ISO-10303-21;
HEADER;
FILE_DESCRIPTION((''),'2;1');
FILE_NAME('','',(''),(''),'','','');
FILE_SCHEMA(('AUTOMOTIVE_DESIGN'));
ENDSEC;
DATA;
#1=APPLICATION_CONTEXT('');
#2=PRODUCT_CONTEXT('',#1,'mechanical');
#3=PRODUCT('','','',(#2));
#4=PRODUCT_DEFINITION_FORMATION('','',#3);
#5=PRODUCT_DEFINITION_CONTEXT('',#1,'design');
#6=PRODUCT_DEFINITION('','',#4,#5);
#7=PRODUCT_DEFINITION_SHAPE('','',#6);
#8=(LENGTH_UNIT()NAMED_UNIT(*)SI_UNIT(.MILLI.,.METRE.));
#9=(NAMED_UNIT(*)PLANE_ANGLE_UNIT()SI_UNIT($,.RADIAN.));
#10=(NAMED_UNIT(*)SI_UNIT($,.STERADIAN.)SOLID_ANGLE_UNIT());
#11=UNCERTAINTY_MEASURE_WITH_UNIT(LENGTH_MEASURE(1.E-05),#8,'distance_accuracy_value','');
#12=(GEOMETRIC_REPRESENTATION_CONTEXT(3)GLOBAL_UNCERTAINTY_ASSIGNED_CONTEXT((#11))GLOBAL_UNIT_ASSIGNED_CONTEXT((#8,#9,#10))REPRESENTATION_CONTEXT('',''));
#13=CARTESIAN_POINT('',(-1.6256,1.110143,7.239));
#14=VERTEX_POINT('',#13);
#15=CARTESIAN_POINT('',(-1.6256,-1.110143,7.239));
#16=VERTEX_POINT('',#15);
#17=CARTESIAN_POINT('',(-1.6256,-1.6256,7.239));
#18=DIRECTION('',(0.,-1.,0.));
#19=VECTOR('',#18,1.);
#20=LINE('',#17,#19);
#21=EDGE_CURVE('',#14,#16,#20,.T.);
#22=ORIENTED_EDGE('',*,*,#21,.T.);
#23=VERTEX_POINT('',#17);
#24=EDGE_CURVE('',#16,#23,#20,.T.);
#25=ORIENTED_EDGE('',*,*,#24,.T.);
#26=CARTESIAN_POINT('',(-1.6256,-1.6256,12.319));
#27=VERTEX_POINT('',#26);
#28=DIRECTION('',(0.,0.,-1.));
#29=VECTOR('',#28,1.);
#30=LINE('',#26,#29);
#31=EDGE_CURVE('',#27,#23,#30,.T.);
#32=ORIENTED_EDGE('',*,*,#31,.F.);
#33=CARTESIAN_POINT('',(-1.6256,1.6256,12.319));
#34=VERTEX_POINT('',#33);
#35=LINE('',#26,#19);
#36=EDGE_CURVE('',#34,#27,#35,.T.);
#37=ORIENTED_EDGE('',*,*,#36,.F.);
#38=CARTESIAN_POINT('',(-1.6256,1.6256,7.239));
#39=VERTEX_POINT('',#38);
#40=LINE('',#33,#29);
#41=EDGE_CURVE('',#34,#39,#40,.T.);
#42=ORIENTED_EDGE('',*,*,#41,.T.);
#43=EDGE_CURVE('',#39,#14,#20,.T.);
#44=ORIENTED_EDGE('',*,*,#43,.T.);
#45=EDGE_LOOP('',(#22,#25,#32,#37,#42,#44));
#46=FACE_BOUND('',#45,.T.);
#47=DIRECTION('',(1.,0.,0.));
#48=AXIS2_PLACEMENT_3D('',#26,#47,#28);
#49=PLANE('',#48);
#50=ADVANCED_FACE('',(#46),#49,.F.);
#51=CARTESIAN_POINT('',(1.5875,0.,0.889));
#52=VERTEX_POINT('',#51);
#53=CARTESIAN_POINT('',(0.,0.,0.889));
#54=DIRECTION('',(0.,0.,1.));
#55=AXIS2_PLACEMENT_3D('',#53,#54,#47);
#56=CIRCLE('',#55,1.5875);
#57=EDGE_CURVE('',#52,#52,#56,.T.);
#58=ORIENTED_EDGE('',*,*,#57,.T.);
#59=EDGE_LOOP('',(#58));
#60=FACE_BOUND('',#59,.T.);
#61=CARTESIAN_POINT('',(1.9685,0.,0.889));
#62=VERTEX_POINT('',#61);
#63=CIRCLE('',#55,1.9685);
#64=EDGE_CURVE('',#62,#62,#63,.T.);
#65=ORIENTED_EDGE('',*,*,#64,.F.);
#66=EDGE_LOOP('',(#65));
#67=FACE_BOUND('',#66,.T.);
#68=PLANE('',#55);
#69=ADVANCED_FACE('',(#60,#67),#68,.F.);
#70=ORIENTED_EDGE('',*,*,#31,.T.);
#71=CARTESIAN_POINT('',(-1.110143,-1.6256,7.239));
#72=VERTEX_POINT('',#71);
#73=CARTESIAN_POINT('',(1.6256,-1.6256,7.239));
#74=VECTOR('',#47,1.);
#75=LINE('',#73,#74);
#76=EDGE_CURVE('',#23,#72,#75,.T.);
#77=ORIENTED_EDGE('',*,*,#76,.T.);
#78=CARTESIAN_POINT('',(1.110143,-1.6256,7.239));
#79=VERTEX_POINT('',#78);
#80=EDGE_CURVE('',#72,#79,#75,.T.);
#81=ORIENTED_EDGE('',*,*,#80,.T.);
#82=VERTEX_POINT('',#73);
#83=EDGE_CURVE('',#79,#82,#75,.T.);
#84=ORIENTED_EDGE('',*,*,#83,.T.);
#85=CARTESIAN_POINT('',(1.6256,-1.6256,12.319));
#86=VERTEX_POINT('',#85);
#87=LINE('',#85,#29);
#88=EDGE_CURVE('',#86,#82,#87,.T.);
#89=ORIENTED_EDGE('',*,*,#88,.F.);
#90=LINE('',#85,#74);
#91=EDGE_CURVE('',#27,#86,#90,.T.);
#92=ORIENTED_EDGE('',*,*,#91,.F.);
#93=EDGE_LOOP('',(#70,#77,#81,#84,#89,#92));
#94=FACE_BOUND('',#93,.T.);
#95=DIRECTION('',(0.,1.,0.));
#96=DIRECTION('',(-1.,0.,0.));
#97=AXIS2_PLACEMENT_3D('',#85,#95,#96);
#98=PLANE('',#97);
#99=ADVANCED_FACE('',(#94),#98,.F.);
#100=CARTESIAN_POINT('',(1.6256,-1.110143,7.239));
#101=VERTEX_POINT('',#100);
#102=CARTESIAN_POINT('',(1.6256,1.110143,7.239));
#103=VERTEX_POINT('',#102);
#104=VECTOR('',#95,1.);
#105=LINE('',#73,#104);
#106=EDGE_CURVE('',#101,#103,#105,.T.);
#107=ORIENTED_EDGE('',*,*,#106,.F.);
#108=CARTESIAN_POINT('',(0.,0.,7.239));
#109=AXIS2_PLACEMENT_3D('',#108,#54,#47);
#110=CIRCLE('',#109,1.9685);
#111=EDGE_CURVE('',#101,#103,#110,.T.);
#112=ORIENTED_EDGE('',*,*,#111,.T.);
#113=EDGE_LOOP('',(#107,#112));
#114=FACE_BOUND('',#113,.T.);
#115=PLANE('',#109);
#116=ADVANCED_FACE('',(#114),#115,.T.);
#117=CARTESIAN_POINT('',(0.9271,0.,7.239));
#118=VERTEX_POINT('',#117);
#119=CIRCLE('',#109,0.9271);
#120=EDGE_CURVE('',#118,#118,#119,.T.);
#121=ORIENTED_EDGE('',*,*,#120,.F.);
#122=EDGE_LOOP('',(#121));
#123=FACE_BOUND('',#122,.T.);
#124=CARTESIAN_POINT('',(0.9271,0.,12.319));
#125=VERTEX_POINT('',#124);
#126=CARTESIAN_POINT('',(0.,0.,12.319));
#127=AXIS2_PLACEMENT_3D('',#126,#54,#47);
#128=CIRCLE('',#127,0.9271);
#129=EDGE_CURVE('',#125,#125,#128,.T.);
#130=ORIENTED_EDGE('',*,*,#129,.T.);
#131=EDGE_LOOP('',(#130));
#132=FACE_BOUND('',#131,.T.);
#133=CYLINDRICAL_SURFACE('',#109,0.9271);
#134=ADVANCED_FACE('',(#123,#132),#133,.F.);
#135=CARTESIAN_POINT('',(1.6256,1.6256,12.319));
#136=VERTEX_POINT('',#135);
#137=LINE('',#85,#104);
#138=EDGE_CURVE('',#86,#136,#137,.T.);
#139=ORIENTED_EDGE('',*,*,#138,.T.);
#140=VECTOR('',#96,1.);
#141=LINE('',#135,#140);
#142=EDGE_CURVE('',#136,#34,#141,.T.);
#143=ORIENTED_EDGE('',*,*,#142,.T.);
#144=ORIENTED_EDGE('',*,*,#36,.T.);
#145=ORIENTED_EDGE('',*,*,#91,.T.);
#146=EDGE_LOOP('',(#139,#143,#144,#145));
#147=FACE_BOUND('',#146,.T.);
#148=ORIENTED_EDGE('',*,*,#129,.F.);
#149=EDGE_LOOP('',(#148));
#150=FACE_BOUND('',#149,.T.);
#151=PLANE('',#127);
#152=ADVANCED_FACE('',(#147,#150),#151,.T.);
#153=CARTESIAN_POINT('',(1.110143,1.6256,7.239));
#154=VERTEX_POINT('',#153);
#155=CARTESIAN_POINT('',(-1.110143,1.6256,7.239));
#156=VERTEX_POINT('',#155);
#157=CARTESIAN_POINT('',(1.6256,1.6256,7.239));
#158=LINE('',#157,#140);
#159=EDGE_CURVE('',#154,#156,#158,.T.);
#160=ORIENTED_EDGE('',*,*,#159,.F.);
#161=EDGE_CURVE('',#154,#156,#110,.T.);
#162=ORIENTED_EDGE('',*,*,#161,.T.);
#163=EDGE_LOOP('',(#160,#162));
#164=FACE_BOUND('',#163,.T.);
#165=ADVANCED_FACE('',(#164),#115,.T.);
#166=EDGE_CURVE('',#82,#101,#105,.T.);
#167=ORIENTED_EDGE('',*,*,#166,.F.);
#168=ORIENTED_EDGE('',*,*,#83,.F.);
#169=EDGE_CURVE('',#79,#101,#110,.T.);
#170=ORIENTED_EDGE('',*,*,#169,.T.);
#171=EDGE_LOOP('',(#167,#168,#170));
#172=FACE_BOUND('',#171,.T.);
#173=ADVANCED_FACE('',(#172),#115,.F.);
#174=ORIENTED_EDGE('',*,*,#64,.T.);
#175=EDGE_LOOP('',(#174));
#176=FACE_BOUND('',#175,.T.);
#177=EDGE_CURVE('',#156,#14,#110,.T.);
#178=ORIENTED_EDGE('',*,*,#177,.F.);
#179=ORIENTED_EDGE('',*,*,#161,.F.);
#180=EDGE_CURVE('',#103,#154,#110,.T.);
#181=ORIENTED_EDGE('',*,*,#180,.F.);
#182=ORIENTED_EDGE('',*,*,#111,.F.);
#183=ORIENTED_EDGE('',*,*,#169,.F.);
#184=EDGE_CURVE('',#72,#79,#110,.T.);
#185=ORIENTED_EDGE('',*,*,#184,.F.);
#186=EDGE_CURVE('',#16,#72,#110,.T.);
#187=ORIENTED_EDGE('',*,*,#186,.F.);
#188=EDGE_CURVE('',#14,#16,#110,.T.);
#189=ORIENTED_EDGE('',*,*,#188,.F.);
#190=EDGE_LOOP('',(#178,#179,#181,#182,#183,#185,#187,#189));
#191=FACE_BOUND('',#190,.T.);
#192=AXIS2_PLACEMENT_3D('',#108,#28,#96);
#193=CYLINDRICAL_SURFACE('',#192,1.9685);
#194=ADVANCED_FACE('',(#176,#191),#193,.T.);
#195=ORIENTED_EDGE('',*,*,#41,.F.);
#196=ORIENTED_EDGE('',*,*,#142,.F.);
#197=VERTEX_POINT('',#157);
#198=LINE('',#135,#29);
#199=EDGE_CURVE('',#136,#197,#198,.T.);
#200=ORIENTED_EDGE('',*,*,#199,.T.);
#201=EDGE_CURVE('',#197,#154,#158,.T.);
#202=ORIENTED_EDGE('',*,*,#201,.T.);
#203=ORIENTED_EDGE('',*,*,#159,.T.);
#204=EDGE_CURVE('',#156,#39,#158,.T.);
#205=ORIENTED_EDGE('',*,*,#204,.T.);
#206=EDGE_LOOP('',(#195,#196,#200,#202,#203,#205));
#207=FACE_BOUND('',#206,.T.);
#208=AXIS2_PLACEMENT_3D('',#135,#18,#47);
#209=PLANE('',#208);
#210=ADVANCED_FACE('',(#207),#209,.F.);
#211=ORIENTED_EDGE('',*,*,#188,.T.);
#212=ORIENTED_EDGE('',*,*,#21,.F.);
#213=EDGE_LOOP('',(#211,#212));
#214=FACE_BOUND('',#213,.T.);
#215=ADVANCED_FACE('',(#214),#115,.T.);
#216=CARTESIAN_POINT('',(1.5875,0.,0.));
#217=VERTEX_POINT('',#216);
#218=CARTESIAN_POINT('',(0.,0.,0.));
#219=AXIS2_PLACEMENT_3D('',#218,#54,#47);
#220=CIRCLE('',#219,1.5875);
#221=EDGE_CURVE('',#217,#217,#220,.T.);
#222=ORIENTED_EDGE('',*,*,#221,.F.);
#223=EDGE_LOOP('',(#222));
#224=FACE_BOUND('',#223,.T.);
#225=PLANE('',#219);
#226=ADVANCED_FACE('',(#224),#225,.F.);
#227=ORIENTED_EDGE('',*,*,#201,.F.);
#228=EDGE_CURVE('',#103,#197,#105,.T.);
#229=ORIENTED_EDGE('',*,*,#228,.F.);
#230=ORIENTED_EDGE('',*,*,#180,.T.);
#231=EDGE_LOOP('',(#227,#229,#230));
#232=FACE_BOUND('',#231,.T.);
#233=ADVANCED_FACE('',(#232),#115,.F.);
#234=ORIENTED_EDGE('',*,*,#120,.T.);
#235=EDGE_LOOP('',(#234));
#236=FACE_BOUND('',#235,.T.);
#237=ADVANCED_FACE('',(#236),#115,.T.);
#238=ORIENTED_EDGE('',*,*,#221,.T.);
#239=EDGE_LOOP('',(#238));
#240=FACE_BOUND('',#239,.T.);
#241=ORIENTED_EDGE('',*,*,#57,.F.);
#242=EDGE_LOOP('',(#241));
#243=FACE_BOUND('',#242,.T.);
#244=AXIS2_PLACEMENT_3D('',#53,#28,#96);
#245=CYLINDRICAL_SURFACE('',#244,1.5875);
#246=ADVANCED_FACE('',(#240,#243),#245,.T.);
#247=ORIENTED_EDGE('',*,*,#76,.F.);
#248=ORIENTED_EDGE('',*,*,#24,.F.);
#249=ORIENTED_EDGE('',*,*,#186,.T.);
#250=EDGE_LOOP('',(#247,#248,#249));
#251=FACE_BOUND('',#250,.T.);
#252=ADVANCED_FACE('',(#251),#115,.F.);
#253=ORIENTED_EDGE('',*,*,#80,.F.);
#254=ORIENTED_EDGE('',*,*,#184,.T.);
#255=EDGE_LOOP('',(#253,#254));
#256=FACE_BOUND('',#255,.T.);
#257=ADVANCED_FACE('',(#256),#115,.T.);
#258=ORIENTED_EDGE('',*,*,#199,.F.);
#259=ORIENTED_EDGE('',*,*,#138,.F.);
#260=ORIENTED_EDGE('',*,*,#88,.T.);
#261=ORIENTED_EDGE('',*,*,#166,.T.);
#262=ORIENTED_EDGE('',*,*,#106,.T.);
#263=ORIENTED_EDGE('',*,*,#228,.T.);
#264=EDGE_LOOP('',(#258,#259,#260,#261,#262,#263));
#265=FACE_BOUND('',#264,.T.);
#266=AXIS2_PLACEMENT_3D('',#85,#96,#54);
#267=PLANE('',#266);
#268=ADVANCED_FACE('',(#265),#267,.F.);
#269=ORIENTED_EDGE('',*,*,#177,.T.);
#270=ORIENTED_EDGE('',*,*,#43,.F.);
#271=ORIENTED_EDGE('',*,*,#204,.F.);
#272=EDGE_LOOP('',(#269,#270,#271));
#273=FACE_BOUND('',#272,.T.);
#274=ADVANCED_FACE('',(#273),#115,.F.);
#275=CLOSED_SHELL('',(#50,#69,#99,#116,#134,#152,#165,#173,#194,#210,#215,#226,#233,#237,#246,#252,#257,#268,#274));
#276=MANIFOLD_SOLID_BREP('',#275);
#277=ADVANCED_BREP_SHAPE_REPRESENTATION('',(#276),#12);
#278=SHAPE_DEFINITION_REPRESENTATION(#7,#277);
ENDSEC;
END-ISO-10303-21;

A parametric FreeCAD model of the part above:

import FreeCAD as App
import Part
import Sketcher

V = App.Vector
Q = App.Units.Quantity

doc = App.newDocument("Part")
body = doc.addObject("PartDesign::Body", "Body")

sketch1 = body.newObject("Sketcher::SketchObject", "Sketch")
sketch1.AttachmentSupport = (doc.getObject("XY_Plane"), [""])
sketch1.MapMode = "FlatFace"
sketch1.addGeometry(Part.Circle(V(0, 0, 0), V(0, 0, 1), 1.6), False)
sketch1.addConstraint(Sketcher.Constraint("Coincident", 0, 3, -1, 1))
sketch1.addConstraint(Sketcher.Constraint("Diameter", 0, Q("0.125 in")))
pad1 = body.newObject("PartDesign::Pad", "Pad")
pad1.Profile = sketch1
pad1.Length = Q("0.035 in")

sketch2 = body.newObject("Sketcher::SketchObject", "Sketch001")
sketch2.AttachmentSupport = (doc.getObject("XY_Plane"), [""])
sketch2.MapMode = "FlatFace"
sketch2.AttachmentOffset = App.Placement(V(0, 0, 0.035 * 25.4), App.Rotation())
sketch2.addGeometry(Part.Circle(V(0, 0, 0), V(0, 0, 1), 2), False)
sketch2.addConstraint(Sketcher.Constraint("Coincident", 0, 3, -1, 1))
sketch2.addConstraint(Sketcher.Constraint("Diameter", 0, Q("0.155 in")))
pad2 = body.newObject("PartDesign::Pad", "Pad001")
pad2.Profile = sketch2
pad2.Length = Q("0.25 in")

sketch3 = body.newObject("Sketcher::SketchObject", "Sketch002")
sketch3.AttachmentSupport = (doc.getObject("XY_Plane"), [""])
sketch3.MapMode = "FlatFace"
sketch3.AttachmentOffset = App.Placement(V(0, 0, 0.285 * 25.4), App.Rotation())
sketch3.addGeometry(Part.LineSegment(V(-1.6, 1.6, 0), V(-1.6, -1.6, 0)), False)
sketch3.addGeometry(Part.LineSegment(V(-1.6, -1.6, 0), V(1.6, -1.6, 0)), False)
sketch3.addGeometry(Part.LineSegment(V(1.6, -1.6, 0), V(1.6, 1.6, 0)), False)
sketch3.addGeometry(Part.LineSegment(V(1.6, 1.6, 0), V(-1.6, 1.6, 0)), False)
sketch3.addConstraint(Sketcher.Constraint("Coincident", 0, 2, 1, 1))
sketch3.addConstraint(Sketcher.Constraint("Coincident", 1, 2, 2, 1))
sketch3.addConstraint(Sketcher.Constraint("Coincident", 2, 2, 3, 1))
sketch3.addConstraint(Sketcher.Constraint("Coincident", 3, 2, 0, 1))
sketch3.addConstraint(Sketcher.Constraint("Vertical", 0))
sketch3.addConstraint(Sketcher.Constraint("Horizontal", 1))
sketch3.addConstraint(Sketcher.Constraint("Vertical", 2))
sketch3.addConstraint(Sketcher.Constraint("Horizontal", 3))
sketch3.addConstraint(Sketcher.Constraint("Symmetric", 0, 2, 2, 2, -1, 1))
sketch3.addConstraint(Sketcher.Constraint("Equal", 3, 0))
sketch3.addConstraint(Sketcher.Constraint("DistanceX", 1, 1, 1, 2, Q("0.128 in")))
pad3 = body.newObject("PartDesign::Pad", "Pad002")
pad3.Profile = sketch3
pad3.Length = Q("0.2 in")

sketch4 = body.newObject("Sketcher::SketchObject", "Sketch003")
sketch4.AttachmentSupport = (doc.getObject("XY_Plane"), [""])
sketch4.MapMode = "FlatFace"
sketch4.AttachmentOffset = App.Placement(V(0, 0, 0.485 * 25.4), App.Rotation())
sketch4.addGeometry(Part.Circle(V(0, 0, 0), V(0, 0, 1), 0.9), False)
sketch4.addConstraint(Sketcher.Constraint("Coincident", 0, 3, -1, 1))
sketch4.addConstraint(Sketcher.Constraint("Diameter", 0, Q("0.073 in")))
pocket1 = body.newObject("PartDesign::Pocket", "Pocket")
pocket1.Profile = sketch4
pocket1.Length = Q("0.2 in")

doc.recompute()
